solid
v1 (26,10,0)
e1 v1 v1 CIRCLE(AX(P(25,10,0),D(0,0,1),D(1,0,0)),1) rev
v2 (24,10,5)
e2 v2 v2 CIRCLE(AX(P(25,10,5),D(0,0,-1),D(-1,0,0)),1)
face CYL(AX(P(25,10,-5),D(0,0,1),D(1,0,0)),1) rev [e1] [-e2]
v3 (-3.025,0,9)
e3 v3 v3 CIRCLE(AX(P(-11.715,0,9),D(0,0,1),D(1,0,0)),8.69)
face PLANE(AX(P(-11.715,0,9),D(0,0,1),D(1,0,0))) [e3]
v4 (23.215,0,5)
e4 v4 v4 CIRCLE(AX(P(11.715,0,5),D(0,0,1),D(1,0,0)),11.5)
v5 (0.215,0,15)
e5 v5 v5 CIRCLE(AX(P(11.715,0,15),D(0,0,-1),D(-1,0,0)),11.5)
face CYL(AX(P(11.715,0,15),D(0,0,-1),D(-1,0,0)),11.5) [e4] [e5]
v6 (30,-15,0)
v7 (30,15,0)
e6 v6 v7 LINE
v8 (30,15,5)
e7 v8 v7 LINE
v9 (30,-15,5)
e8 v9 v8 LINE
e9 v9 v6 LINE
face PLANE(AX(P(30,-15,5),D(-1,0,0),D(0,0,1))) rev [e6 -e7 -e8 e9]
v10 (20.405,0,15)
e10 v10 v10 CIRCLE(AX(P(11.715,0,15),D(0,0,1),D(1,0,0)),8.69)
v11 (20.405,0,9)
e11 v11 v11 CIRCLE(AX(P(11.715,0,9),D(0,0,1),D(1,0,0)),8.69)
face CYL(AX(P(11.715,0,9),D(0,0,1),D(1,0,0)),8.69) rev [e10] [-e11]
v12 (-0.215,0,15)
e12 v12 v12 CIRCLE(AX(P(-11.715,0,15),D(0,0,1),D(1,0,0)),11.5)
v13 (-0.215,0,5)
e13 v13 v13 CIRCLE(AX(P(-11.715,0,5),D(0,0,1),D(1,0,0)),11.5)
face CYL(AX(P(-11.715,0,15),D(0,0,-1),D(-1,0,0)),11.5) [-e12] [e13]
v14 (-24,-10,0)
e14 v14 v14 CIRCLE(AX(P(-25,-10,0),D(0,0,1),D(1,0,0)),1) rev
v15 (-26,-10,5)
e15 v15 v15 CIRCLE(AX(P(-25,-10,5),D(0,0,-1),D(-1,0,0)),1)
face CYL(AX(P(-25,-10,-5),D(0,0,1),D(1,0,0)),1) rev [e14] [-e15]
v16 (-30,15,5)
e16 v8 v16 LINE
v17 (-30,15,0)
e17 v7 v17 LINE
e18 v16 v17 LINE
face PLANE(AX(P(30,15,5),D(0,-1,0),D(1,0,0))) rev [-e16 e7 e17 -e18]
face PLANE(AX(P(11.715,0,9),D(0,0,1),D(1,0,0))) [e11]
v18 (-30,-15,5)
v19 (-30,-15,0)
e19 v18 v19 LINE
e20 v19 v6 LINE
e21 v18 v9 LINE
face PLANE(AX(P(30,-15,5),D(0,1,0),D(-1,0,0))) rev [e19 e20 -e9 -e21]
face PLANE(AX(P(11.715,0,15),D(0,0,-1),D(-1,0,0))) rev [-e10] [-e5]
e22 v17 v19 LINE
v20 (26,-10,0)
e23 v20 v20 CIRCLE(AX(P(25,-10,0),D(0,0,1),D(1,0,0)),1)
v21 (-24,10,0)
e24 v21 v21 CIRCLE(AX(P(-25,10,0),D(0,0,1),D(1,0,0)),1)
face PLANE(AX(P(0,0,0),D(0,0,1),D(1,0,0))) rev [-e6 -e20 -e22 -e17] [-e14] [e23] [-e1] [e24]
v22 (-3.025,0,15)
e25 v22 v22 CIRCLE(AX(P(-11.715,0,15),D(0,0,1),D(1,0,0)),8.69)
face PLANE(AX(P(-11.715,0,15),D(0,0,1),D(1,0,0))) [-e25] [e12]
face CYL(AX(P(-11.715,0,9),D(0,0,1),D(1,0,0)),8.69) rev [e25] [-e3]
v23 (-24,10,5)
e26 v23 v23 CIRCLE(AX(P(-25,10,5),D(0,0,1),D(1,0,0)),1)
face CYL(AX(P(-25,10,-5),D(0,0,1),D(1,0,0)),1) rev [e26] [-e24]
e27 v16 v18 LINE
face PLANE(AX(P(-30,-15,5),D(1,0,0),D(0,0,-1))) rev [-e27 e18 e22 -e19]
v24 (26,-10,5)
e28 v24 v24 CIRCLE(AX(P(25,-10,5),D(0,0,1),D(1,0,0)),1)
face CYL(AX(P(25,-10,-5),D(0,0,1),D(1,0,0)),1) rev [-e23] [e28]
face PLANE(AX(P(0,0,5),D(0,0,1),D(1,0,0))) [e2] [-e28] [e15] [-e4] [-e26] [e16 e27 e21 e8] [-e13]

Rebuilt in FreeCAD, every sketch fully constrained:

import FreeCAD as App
import Part
import Sketcher

V = App.Vector
Q = App.Units.Quantity


def add_polygon(sketch, points):
    """Adds a closed chain of lines whose ends are joined by coincident constraints."""
    first, n = sketch.GeometryCount, len(points)
    for a, b in zip(points, points[1:] + points[:1]):
        sketch.addGeometry(Part.LineSegment(App.Vector(*a, 0), App.Vector(*b, 0)), False)
    for i in range(n):
        sketch.addConstraint(Sketcher.Constraint("Coincident", first + i, 2, first + (i + 1) % n, 1))

doc = App.newDocument("Part")
body = doc.addObject("PartDesign::Body", "Body")

# Sketch on XY plane
sketch1 = body.newObject("Sketcher::SketchObject", "Sketch")
sketch1.AttachmentSupport = (doc.getObject("XY_Plane"), [""])
sketch1.MapMode = "FlatFace"
add_polygon(sketch1, [(-30, 15), (-30, -15), (30, -15), (30, 15)])  # lines 0-3
sketch1.addConstraint([
    Sketcher.Constraint("Vertical", 0),
    Sketcher.Constraint("Horizontal", 1),
    Sketcher.Constraint("Vertical", 2),
    Sketcher.Constraint("Horizontal", 3),
    Sketcher.Constraint("Symmetric", 0, 2, 2, 2, -1, 1),
    Sketcher.Constraint("DistanceX", 1, 1, 1, 2, Q("60 mm")),
    Sketcher.Constraint("DistanceY", 0, 2, 0, 1, Q("30 mm")),
])
pad1 = body.newObject("PartDesign::Pad", "Pad")
pad1.Profile = sketch1
pad1.Length = 5

# Sketch on XY plane
sketch2 = body.newObject("Sketcher::SketchObject", "Sketch001")
sketch2.AttachmentSupport = (doc.getObject("XY_Plane"), [""])
sketch2.MapMode = "FlatFace"
sketch2.AttachmentOffset = App.Placement(V(0, 0, 5), App.Rotation())
sketch2.addGeometry([
    Part.Circle(V(-12, 0, 0), V(0, 0, 1), 12),
    Part.Circle(V(12, 0, 0), V(0, 0, 1), 12),
], False)
sketch2.addConstraint([
    Sketcher.Constraint("Equal", 0, 1),
    Sketcher.Constraint("Symmetric", 0, 3, 1, 3, -1, 1),
    Sketcher.Constraint("PointOnObject", 0, 3, -1),
    Sketcher.Constraint("Diameter", 0, Q("23 mm")),
    Sketcher.Constraint("DistanceX", 0, 3, 1, 3, Q("23.43 mm")),
])
pad2 = body.newObject("PartDesign::Pad", "Pad001")
pad2.Profile = sketch2
pad2.Length = 10

# Sketch on XY plane
sketch3 = body.newObject("Sketcher::SketchObject", "Sketch002")
sketch3.AttachmentSupport = (doc.getObject("XY_Plane"), [""])
sketch3.MapMode = "FlatFace"
sketch3.AttachmentOffset = App.Placement(V(0, 0, 15), App.Rotation())
sketch3.addGeometry([
    Part.Circle(V(-12, 0, 0), V(0, 0, 1), 9),
    Part.Circle(V(12, 0, 0), V(0, 0, 1), 9),
], False)
sketch3.addConstraint([
    Sketcher.Constraint("Equal", 0, 1),
    Sketcher.Constraint("Symmetric", 0, 3, 1, 3, -1, 1),
    Sketcher.Constraint("PointOnObject", 0, 3, -1),
    Sketcher.Constraint("Diameter", 0, Q("17.38 mm")),
    Sketcher.Constraint("DistanceX", 0, 3, 1, 3, Q("23.43 mm")),
])
pocket1 = body.newObject("PartDesign::Pocket", "Pocket")
pocket1.Profile = sketch3
pocket1.Length = 6

# Sketch on XY plane
sketch4 = body.newObject("Sketcher::SketchObject", "Sketch003")
sketch4.AttachmentSupport = (doc.getObject("XY_Plane"), [""])
sketch4.MapMode = "FlatFace"
sketch4.AttachmentOffset = App.Placement(V(0, 0, 5), App.Rotation())
sketch4.addGeometry([
    Part.Circle(V(-25, 10, 0), V(0, 0, 1), 1),
    Part.Circle(V(25, 10, 0), V(0, 0, 1), 1),
    Part.Circle(V(25, -10, 0), V(0, 0, 1), 1),
    Part.Circle(V(-25, -10, 0), V(0, 0, 1), 1),
], False)
sketch4.addConstraint([
    Sketcher.Constraint("Equal", 0, 1),
    Sketcher.Constraint("Equal", 1, 2),
    Sketcher.Constraint("Equal", 2, 3),
    Sketcher.Constraint("Symmetric", 0, 3, 2, 3, -1, 1),
    Sketcher.Constraint("Symmetric", 1, 3, 3, 3, -1, 1),
    Sketcher.Constraint("Symmetric", 0, 3, 1, 3, -2),
    Sketcher.Constraint("Diameter", 0, Q("2 mm")),
    Sketcher.Constraint("DistanceX", 0, 3, -1, 1, Q("25 mm")),
    Sketcher.Constraint("DistanceY", -1, 1, 0, 3, Q("10 mm")),
])
pocket2 = body.newObject("PartDesign::Pocket", "Pocket001")
pocket2.Profile = sketch4
pocket2.Length = 10

doc.recompute()
